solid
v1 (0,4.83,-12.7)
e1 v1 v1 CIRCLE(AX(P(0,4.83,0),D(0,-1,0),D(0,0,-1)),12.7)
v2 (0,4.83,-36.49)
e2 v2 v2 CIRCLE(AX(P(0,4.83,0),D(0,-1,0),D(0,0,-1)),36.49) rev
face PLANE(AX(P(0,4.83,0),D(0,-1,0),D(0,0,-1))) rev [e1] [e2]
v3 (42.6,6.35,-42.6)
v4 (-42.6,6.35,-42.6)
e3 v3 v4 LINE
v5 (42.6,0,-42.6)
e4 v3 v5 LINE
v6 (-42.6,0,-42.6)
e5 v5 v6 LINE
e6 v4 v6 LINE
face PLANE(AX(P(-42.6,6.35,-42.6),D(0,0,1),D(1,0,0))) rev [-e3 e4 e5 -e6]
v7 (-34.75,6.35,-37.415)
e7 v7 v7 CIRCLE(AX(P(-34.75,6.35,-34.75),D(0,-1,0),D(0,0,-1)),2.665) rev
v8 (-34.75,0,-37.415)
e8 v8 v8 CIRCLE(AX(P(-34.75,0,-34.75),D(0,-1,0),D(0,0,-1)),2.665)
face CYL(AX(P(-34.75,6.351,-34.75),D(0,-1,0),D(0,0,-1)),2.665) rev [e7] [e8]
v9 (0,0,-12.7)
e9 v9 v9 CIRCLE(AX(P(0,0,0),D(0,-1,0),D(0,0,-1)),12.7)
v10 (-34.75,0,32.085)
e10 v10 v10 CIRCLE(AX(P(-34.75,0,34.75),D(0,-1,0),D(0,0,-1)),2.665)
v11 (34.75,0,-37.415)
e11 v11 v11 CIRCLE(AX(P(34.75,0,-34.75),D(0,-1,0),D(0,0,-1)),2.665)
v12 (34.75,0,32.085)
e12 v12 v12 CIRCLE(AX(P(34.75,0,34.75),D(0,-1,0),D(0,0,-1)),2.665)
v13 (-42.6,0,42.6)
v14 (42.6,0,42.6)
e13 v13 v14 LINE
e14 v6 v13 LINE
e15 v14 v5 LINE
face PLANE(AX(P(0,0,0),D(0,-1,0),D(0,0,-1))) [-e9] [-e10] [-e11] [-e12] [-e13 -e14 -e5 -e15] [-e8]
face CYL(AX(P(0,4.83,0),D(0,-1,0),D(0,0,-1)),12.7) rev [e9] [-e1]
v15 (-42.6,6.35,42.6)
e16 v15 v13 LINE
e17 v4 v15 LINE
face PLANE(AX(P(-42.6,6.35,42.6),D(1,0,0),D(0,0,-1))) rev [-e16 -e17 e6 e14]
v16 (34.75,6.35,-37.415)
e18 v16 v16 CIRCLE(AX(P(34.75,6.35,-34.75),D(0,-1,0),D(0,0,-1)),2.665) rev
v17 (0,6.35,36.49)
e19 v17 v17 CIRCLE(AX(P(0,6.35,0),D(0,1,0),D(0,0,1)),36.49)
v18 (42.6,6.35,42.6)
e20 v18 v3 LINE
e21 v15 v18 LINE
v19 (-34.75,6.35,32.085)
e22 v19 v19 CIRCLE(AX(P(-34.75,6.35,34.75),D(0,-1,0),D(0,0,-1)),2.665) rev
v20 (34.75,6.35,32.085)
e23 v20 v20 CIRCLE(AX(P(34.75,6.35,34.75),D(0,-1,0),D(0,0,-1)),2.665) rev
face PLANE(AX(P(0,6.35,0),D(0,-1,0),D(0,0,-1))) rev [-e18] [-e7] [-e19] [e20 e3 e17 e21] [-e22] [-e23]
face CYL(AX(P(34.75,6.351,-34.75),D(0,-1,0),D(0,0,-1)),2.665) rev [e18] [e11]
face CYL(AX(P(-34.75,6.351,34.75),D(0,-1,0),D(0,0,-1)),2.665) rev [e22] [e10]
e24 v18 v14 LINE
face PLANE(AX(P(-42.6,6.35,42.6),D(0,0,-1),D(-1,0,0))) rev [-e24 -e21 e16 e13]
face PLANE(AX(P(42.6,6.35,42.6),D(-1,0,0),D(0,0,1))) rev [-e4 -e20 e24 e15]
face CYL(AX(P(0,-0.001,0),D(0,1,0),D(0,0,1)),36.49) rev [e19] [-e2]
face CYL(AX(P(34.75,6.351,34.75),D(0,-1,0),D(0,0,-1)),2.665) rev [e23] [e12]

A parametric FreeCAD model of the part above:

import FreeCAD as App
import Part
import Sketcher

V = App.Vector
Q = App.Units.Quantity

doc = App.newDocument("Part")
body = doc.addObject("PartDesign::Body", "Body")

# Sketch on XZ plane
sketch1 = body.newObject("Sketcher::SketchObject", "Sketch")
sketch1.AttachmentSupport = (doc.getObject("XZ_Plane"), [""])
sketch1.MapMode = "FlatFace"
sketch1.addGeometry([
    Part.LineSegment(V(-43, -43, 0), V(-43, 43, 0)),
    Part.LineSegment(V(-43, 43, 0), V(43, 43, 0)),
    Part.LineSegment(V(43, 43, 0), V(43, -43, 0)),
    Part.LineSegment(V(43, -43, 0), V(-43, -43, 0)),
], False)
sketch1.addConstraint([
    Sketcher.Constraint("Coincident", 0, 2, 1, 1),
    Sketcher.Constraint("Coincident", 1, 2, 2, 1),
    Sketcher.Constraint("Coincident", 2, 2, 3, 1),
    Sketcher.Constraint("Coincident", 3, 2, 0, 1),
    Sketcher.Constraint("Vertical", 0),
    Sketcher.Constraint("Horizontal", 1),
    Sketcher.Constraint("Vertical", 2),
    Sketcher.Constraint("Horizontal", 3),
    Sketcher.Constraint("Symmetric", 0, 2, 2, 2, -1, 1),
    Sketcher.Constraint("Equal", 3, 0),
    Sketcher.Constraint("DistanceX", 1, 1, 1, 2, Q("85.2 mm")),
])
pad1 = body.newObject("PartDesign::Pad", "Pad")
pad1.Profile = sketch1
pad1.Length = Q("0.25 in")
pad1.Reversed = True

# Sketch on XZ plane
sketch2 = body.newObject("Sketcher::SketchObject", "Sketch001")
sketch2.AttachmentSupport = (doc.getObject("XZ_Plane"), [""])
sketch2.MapMode = "FlatFace"
sketch2.AttachmentOffset = App.Placement(V(0, 0, -0.25 * 25.4), App.Rotation())
sketch2.addGeometry(Part.Circle(V(0, 0, 0), V(0, 0, 1), 36), False)
sketch2.addConstraint([
    Sketcher.Constraint("Coincident", 0, 3, -1, 1),
    Sketcher.Constraint("Diameter", 0, Q("72.98 mm")),
])
pocket1 = body.newObject("PartDesign::Pocket", "Pocket")
pocket1.Profile = sketch2
pocket1.Type = "UpToFirst"
pocket1.Reversed = True

# Sketch on XZ plane
sketch3 = body.newObject("Sketcher::SketchObject", "Sketch002")
sketch3.AttachmentSupport = (doc.getObject("XZ_Plane"), [""])
sketch3.MapMode = "FlatFace"
sketch3.AttachmentOffset = App.Placement(V(0, 0, -4.83), App.Rotation())
sketch3.addGeometry([
    Part.Circle(V(0, 0, 0), V(0, 0, 1), 36),
    Part.Circle(V(0, 0, 0), V(0, 0, 1), 13),
], False)
sketch3.addConstraint([
    Sketcher.Constraint("Coincident", 0, 3, -1, 1),
    Sketcher.Constraint("Coincident", 1, 3, -1, 1),
    Sketcher.Constraint("Diameter", 1, Q("1 in")),
    Sketcher.Constraint("Diameter", 0, Q("72.98 mm")),
])
pad2 = body.newObject("PartDesign::Pad", "Pad001")
pad2.Profile = sketch3
pad2.Length = 4.83

# Sketch on XZ plane
sketch4 = body.newObject("Sketcher::SketchObject", "Sketch003")
sketch4.AttachmentSupport = (doc.getObject("XZ_Plane"), [""])
sketch4.MapMode = "FlatFace"
sketch4.addGeometry(Part.Circle(V(-34.8, -34.8, 0), V(0, 0, 1), 2.7), False)
sketch4.addConstraint([
    Sketcher.Constraint("Diameter", 0, Q("5.33 mm")),
    Sketcher.Constraint("DistanceX", 0, 3, -1, 1, Q("34.75 mm")),
    Sketcher.Constraint("DistanceY", 0, 3, -1, 1, Q("34.75 mm")),
])
pocket2 = body.newObject("PartDesign::Pocket", "Pocket001")
pocket2.Profile = sketch4
pocket2.Type = "UpToFirst"

# Sketch on XZ plane
sketch5 = body.newObject("Sketcher::SketchObject", "Sketch004")
sketch5.AttachmentSupport = (doc.getObject("XZ_Plane"), [""])
sketch5.MapMode = "FlatFace"
sketch5.addGeometry(Part.Circle(V(-34.8, 34.8, 0), V(0, 0, 1), 2.7), False)
sketch5.addConstraint([
    Sketcher.Constraint("Diameter", 0, Q("5.33 mm")),
    Sketcher.Constraint("DistanceX", 0, 3, -1, 1, Q("34.75 mm")),
    Sketcher.Constraint("DistanceY", -1, 1, 0, 3, Q("34.75 mm")),
])
pocket3 = body.newObject("PartDesign::Pocket", "Pocket002")
pocket3.Profile = sketch5
pocket3.Type = "UpToFirst"

# Sketch on XZ plane
sketch6 = body.newObject("Sketcher::SketchObject", "Sketch005")
sketch6.AttachmentSupport = (doc.getObject("XZ_Plane"), [""])
sketch6.MapMode = "FlatFace"
sketch6.addGeometry(Part.Circle(V(34.8, 34.8, 0), V(0, 0, 1), 2.7), False)
sketch6.addConstraint([
    Sketcher.Constraint("Diameter", 0, Q("5.33 mm")),
    Sketcher.Constraint("DistanceX", -1, 1, 0, 3, Q("34.75 mm")),
    Sketcher.Constraint("DistanceY", -1, 1, 0, 3, Q("34.75 mm")),
])
pocket4 = body.newObject("PartDesign::Pocket", "Pocket003")
pocket4.Profile = sketch6
pocket4.Type = "UpToFirst"

# Sketch on XZ plane
sketch7 = body.newObject("Sketcher::SketchObject", "Sketch006")
sketch7.AttachmentSupport = (doc.getObject("XZ_Plane"), [""])
sketch7.MapMode = "FlatFace"
sketch7.addGeometry(Part.Circle(V(34.8, -34.8, 0), V(0, 0, 1), 2.7), False)
sketch7.addConstraint([
    Sketcher.Constraint("Diameter", 0, Q("5.33 mm")),
    Sketcher.Constraint("DistanceX", -1, 1, 0, 3, Q("34.75 mm")),
    Sketcher.Constraint("DistanceY", 0, 3, -1, 1, Q("34.75 mm")),
])
pocket5 = body.newObject("PartDesign::Pocket", "Pocket004")
pocket5.Profile = sketch7
pocket5.Type = "UpToFirst"

doc.recompute()
